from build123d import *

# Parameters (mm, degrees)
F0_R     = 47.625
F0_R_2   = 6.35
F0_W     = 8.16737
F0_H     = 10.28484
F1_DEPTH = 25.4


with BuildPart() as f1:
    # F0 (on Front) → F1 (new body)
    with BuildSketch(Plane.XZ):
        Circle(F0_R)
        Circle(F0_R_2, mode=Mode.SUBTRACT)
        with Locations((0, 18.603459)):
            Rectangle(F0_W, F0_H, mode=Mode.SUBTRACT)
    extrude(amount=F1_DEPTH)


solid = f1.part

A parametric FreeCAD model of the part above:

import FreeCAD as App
import Part
import Sketcher

V = App.Vector
Q = App.Units.Quantity


def add_polygon(sketch, points):
    """Adds a closed chain of lines whose ends are joined by coincident constraints."""
    first, n = sketch.GeometryCount, len(points)
    for a, b in zip(points, points[1:] + points[:1]):
        sketch.addGeometry(Part.LineSegment(App.Vector(*a, 0), App.Vector(*b, 0)), False)
    for i in range(n):
        sketch.addConstraint(Sketcher.Constraint("Coincident", first + i, 2, first + (i + 1) % n, 1))

doc = App.newDocument("Part")
body = doc.addObject("PartDesign::Body", "Body")

# Sketch on XZ plane
sketch1 = body.newObject("Sketcher::SketchObject", "Sketch")
sketch1.AttachmentSupport = (doc.getObject("XZ_Plane"), [""])
sketch1.MapMode = "FlatFace"
sketch1.addGeometry(Part.Circle(V(0, 0, 0), V(0, 0, 1), 48), False)  # 0
sketch1.addGeometry(Part.Circle(V(0, 0, 0), V(0, 0, 1), 6), False)  # 1
add_polygon(sketch1, [(4, 13), (-4, 13), (-4, 24), (4, 24)])  # lines 2-5
sketch1.addConstraint([
    Sketcher.Constraint("Horizontal", 2),
    Sketcher.Constraint("Vertical", 3),
    Sketcher.Constraint("Horizontal", 4),
    Sketcher.Constraint("Vertical", 5),
    Sketcher.Constraint("Coincident", 0, 3, -1, 1),
    Sketcher.Constraint("Coincident", 1, 3, -1, 1),
    Sketcher.Constraint("Diameter", 1, Q("0.5 in")),
    Sketcher.Constraint("Diameter", 0, Q("3.75 in")),
    Sketcher.Constraint("DistanceX", 2, 2, 2, 1, Q("8.16737 mm")),
    Sketcher.Constraint("DistanceY", 3, 1, 3, 2, Q("10.28484 mm")),
    Sketcher.Constraint("DistanceY", -1, 1, 2, 2, Q("13.461039 mm")),
    Sketcher.Constraint("DistanceX", 2, 2, -1, 1, Q("4.083685 mm")),
])
pad1 = body.newObject("PartDesign::Pad", "Pad")
pad1.Profile = sketch1
pad1.Length = Q("1 in")

doc.recompute()
